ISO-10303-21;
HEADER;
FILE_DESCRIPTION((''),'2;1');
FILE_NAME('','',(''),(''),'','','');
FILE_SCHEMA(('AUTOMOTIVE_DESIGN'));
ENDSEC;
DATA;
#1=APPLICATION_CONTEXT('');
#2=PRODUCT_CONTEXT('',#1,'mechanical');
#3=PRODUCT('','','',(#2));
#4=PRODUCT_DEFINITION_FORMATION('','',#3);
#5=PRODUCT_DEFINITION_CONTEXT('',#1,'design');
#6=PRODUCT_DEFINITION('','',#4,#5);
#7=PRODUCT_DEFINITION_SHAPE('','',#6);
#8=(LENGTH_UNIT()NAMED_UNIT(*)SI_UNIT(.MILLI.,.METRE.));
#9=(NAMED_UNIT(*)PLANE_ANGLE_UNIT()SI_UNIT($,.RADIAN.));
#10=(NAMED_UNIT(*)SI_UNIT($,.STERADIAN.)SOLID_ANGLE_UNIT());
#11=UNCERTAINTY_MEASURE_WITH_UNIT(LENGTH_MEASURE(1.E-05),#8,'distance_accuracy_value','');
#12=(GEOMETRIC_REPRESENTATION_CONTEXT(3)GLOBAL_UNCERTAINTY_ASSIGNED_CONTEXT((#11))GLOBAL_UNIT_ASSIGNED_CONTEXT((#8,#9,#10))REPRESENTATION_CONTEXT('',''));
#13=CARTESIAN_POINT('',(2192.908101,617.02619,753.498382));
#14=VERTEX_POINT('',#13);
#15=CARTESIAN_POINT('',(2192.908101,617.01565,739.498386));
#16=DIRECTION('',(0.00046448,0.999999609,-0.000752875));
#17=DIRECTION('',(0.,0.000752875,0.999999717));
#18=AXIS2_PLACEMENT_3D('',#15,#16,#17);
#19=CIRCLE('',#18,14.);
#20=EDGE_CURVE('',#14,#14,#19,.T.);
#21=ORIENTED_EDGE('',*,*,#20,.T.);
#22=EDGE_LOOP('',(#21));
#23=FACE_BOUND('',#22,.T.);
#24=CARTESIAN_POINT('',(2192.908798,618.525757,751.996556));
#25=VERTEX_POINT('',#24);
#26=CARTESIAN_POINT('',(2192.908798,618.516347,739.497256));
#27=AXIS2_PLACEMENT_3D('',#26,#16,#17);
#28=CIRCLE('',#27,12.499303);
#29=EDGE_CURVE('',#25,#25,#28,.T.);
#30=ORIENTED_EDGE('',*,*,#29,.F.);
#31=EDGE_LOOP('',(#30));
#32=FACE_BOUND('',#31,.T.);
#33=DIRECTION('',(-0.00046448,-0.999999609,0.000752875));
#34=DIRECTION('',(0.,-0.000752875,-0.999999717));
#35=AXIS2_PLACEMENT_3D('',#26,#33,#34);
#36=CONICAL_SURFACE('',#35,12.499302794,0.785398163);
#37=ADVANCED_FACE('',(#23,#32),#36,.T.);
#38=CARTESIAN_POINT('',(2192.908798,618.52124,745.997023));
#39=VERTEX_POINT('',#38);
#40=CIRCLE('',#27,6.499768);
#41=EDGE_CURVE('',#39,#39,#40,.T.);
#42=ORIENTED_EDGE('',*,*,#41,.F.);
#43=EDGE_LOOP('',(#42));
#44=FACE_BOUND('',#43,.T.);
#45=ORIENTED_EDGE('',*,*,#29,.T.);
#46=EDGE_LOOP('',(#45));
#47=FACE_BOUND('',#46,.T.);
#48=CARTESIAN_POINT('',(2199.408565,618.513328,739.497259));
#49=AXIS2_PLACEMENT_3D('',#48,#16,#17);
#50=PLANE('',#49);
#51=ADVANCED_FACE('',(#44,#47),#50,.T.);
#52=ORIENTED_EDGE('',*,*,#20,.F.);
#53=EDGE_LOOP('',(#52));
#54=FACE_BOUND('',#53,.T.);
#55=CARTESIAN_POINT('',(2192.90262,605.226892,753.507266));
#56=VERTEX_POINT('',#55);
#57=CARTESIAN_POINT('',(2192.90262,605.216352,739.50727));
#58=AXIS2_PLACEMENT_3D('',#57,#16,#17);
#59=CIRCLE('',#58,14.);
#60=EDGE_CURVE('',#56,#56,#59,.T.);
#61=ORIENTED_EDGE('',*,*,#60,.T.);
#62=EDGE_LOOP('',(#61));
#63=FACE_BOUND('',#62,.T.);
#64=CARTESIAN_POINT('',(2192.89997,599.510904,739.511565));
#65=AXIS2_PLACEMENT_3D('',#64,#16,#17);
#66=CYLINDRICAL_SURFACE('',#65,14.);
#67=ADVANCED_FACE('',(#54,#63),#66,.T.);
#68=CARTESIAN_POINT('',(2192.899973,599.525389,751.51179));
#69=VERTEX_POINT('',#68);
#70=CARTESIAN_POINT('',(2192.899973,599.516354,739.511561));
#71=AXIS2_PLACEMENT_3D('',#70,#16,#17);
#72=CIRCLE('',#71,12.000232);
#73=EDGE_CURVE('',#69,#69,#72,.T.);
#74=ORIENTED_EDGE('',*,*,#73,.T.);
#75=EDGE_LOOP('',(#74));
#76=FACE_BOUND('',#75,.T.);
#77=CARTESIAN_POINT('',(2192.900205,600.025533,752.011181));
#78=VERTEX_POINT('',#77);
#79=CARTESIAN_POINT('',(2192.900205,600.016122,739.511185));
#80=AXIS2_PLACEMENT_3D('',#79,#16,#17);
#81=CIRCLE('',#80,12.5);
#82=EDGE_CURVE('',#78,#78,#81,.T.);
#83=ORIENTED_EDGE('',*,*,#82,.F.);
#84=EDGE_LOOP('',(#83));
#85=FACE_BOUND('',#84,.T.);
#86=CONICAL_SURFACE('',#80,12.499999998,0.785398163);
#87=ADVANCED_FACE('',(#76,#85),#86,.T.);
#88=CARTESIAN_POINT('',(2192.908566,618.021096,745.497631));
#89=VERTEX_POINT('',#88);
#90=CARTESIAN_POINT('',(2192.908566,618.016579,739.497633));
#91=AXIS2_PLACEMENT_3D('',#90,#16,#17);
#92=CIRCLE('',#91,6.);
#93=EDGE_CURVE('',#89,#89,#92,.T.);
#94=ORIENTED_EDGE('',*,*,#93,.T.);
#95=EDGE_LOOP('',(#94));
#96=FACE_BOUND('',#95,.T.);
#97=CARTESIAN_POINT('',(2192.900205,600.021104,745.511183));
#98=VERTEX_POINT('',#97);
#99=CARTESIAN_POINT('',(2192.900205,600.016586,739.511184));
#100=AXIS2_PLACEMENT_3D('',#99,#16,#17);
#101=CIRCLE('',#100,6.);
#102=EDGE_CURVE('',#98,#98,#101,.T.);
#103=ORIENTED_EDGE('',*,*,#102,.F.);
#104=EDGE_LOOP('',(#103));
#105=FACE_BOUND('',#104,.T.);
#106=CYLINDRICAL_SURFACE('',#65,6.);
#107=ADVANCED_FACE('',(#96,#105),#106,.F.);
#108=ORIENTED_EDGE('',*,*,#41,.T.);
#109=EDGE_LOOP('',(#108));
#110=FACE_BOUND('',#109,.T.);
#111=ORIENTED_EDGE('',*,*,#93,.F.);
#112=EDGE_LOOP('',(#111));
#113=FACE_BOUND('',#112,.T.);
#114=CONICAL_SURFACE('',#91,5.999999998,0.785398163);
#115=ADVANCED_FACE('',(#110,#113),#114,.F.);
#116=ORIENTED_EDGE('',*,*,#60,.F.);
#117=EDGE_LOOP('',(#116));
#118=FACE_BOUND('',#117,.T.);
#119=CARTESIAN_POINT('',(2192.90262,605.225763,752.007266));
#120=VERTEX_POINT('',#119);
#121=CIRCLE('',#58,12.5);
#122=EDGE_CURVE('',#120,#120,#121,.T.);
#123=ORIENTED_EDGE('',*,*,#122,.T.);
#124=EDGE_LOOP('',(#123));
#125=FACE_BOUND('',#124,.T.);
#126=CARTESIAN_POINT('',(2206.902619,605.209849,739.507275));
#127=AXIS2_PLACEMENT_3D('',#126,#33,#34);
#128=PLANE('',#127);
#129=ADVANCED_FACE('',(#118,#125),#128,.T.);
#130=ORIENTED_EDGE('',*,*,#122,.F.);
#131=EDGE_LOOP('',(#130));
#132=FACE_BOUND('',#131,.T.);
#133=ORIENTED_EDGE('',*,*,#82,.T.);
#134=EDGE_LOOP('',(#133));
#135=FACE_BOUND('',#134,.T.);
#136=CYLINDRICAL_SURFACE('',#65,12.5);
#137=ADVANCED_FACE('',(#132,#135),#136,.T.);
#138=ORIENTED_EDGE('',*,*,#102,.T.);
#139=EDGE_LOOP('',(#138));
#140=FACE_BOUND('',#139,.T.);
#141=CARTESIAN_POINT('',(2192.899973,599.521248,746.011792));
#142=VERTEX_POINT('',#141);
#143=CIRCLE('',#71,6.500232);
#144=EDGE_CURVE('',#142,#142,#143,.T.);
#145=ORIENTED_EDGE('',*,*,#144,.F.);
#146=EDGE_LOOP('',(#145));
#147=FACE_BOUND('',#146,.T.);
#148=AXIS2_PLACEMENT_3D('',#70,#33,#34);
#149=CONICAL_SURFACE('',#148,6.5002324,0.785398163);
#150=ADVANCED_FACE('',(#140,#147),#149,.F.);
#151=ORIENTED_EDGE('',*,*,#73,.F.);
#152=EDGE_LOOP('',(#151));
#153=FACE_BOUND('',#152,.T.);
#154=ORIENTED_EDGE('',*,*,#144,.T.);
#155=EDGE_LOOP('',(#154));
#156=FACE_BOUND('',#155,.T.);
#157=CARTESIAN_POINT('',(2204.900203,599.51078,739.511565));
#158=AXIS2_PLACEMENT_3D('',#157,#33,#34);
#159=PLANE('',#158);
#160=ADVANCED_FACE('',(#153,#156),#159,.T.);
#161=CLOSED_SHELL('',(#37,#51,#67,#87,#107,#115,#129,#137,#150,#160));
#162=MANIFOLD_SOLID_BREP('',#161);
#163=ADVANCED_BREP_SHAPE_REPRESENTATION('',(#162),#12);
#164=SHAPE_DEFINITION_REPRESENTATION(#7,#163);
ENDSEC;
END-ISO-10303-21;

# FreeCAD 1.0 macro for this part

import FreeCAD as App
import Part
import Sketcher
from FreeCAD import Vector

doc = App.newDocument("Part")
body = doc.addObject("PartDesign::Body", "Body")

sketch1 = body.newObject("Sketcher::SketchObject", "Sketch")
sketch1.Placement = App.Placement(Vector(0, 0.557099, 739.962503), App.Rotation(Vector(-1, 0, 0), Vector(0, 0.999999717, -0.000752875), Vector(0, -0.000752875, -0.999999717), "ZXY"))
sketch1.addGeometry(Part.LineSegment(Vector(-2199.400204, 598.956406, 0), Vector(-2198.900204, 599.456871, 0)), False)
sketch1.addGeometry(Part.LineSegment(Vector(-2198.900204, 599.456871, 0), Vector(-2198.908565, 617.456868, 0)), False)
sketch1.addGeometry(Part.LineSegment(Vector(-2198.908565, 617.456868, 0), Vector(-2199.408565, 617.956404, 0)), False)
sketch1.addGeometry(Part.LineSegment(Vector(-2199.408565, 617.956404, 0), Vector(-2205.408099, 617.953617, 0)), False)
sketch1.addGeometry(Part.LineSegment(Vector(-2205.408099, 617.953617, 0), Vector(-2206.908099, 616.452223, 0)), False)
sketch1.addGeometry(Part.LineSegment(Vector(-2206.908099, 616.452223, 0), Vector(-2206.902619, 604.652922, 0)), False)
sketch1.addGeometry(Part.LineSegment(Vector(-2206.902619, 604.652922, 0), Vector(-2205.402619, 604.653618, 0)), False)
sketch1.addGeometry(Part.LineSegment(Vector(-2205.402619, 604.653618, 0), Vector(-2205.400203, 599.453387, 0)), False)
sketch1.addGeometry(Part.LineSegment(Vector(-2205.400203, 599.453387, 0), Vector(-2204.900203, 598.953851, 0)), False)
sketch1.addGeometry(Part.LineSegment(Vector(-2204.900203, 598.953851, 0), Vector(-2199.400204, 598.956406, 0)), False)
sketch1.addGeometry(Part.LineSegment(Vector(-2192.899973, 598.959425, 0), Vector(-2192.908798, 617.959423, 0)), True)
sketch1.addConstraint(Sketcher.Constraint("Coincident", 0, 2, 1, 1))
sketch1.addConstraint(Sketcher.Constraint("Coincident", 1, 2, 2, 1))
sketch1.addConstraint(Sketcher.Constraint("Coincident", 2, 2, 3, 1))
sketch1.addConstraint(Sketcher.Constraint("Coincident", 3, 2, 4, 1))
sketch1.addConstraint(Sketcher.Constraint("Coincident", 4, 2, 5, 1))
sketch1.addConstraint(Sketcher.Constraint("Coincident", 5, 2, 6, 1))
sketch1.addConstraint(Sketcher.Constraint("Coincident", 6, 2, 7, 1))
sketch1.addConstraint(Sketcher.Constraint("Coincident", 7, 2, 8, 1))
sketch1.addConstraint(Sketcher.Constraint("Coincident", 8, 2, 9, 1))
sketch1.addConstraint(Sketcher.Constraint("Coincident", 9, 2, 0, 1))
sketch1.addConstraint(Sketcher.Constraint("Perpendicular", 0, 2))
sketch1.addConstraint(Sketcher.Constraint("Perpendicular", 1, 3))
sketch1.addConstraint(Sketcher.Constraint("Perpendicular", 2, 4))
sketch1.addConstraint(Sketcher.Constraint("Perpendicular", 3, 5))
sketch1.addConstraint(Sketcher.Constraint("Perpendicular", 5, 6))
sketch1.addConstraint(Sketcher.Constraint("Perpendicular", 6, 7))
sketch1.addConstraint(Sketcher.Constraint("Perpendicular", 4, 8))
sketch1.addConstraint(Sketcher.Constraint("Perpendicular", 7, 9))
sketch1.addConstraint(Sketcher.Constraint("Perpendicular", 9, 10))
sketch1.addConstraint(Sketcher.Constraint("Equal", 2, 8))
sketch1.addConstraint(Sketcher.Constraint("Distance", 1, 18.0))
sketch1.addConstraint(Sketcher.Constraint("Distance", 10, 19.0))
sketch1.addConstraint(Sketcher.Constraint("DistanceX", 8, 2, 0, 2, 5.999999))
sketch1.addConstraint(Sketcher.Constraint("DistanceX", 7, 2, 9, 2, 5.999999))
sketch1.addConstraint(Sketcher.Constraint("Distance", 6, 1.5))
sketch1.addConstraint(Sketcher.Constraint("Distance", 9, 5.5))
sketch1.addConstraint(Sketcher.Constraint("DistanceX", 4, 2, 3, 2, 1.5))
sketch1.addConstraint(Sketcher.Constraint("DistanceY", 6, 2, 3, 2, 13.299999))
sketch1.addConstraint(Sketcher.Constraint("DistanceX", 3, 2, -1, 1, 2205.408099))
sketch1.addConstraint(Sketcher.Constraint("DistanceY", 5, 2, 4, 2, 11.799302))
sketch1.addConstraint(Sketcher.Constraint("DistanceX", 3, 2, 10, 2, 12.499301))
sketch1.addConstraint(Sketcher.Constraint("DistanceY", 4, 2, 10, 2, 1.5072))
sketch1.addConstraint(Sketcher.Constraint("Distance", 2, 0.706779))
sketch1.addConstraint(Sketcher.Constraint("DistanceY", -1, 1, 0, 2, 599.456871))
revolution = body.newObject("PartDesign::Revolution", "Revolution")
revolution.Profile = sketch1
revolution.ReferenceAxis = (sketch1, ["Axis0"])
revolution.Angle = 360

doc.recompute()
